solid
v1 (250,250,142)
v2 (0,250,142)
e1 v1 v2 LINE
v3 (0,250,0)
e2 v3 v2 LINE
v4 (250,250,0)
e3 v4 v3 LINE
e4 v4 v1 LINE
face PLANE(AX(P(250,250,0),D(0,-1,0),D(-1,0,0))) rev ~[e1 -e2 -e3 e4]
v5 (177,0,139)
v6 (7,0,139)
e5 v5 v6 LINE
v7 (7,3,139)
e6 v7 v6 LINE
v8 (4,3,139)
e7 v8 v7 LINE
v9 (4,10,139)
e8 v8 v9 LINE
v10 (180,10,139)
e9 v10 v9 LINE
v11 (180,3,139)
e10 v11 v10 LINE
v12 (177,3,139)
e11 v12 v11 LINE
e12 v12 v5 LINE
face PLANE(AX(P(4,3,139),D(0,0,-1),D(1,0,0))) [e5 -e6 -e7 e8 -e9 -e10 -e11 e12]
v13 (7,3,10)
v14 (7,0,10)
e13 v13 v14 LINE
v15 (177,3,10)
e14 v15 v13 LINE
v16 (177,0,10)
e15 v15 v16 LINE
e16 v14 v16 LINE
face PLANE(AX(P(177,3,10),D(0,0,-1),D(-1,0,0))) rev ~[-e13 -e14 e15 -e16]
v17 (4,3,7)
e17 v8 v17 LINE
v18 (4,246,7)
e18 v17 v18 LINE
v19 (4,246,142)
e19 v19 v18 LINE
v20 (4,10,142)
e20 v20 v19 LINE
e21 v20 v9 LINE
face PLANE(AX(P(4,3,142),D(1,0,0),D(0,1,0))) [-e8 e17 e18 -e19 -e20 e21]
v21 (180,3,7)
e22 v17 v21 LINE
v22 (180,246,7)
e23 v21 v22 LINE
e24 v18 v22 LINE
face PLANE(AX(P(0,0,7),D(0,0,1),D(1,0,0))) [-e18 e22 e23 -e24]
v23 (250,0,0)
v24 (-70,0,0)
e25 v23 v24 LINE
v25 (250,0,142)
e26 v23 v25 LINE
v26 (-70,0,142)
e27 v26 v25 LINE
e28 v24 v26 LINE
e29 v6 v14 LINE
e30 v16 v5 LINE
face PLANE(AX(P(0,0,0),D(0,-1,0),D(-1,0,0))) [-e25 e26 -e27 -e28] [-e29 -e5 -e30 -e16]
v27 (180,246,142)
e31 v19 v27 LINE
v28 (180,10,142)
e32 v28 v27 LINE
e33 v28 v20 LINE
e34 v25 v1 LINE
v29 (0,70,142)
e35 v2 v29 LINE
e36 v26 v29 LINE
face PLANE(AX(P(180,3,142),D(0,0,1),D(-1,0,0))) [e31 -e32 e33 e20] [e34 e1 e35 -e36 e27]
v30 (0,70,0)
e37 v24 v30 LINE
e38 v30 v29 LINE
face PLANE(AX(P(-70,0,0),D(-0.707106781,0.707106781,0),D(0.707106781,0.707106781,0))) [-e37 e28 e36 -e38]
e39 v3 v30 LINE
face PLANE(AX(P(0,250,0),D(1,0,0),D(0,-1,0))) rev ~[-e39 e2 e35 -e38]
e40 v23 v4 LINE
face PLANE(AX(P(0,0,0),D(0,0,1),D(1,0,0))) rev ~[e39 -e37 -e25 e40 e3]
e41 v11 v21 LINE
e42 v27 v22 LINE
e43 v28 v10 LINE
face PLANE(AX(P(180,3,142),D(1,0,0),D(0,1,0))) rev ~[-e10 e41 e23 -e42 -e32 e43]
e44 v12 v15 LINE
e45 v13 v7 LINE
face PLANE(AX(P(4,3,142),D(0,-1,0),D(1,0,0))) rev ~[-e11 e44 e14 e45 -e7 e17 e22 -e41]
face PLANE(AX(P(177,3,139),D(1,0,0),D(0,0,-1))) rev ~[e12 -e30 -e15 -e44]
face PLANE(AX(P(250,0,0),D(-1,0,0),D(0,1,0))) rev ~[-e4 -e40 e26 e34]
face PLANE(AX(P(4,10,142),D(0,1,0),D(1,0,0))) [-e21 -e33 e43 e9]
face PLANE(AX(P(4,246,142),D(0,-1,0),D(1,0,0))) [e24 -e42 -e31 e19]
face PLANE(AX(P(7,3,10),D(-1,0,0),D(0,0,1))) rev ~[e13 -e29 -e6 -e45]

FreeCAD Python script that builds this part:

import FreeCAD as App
import Part
import Sketcher


def add_polygon(sketch, points):
    """Adds a closed chain of lines whose ends are joined by coincident constraints."""
    first, n = sketch.GeometryCount, len(points)
    for a, b in zip(points, points[1:] + points[:1]):
        sketch.addGeometry(Part.LineSegment(App.Vector(*a, 0), App.Vector(*b, 0)), False)
    for i in range(n):
        sketch.addConstraint(Sketcher.Constraint("Coincident", first + i, 2, first + (i + 1) % n, 1))

doc = App.newDocument("Part")
params = doc.addObject("Spreadsheet::Sheet", "Params")
for row, (alias, value) in enumerate([
    ("sketch1_width", "250 mm"),
    ("pad1_length", "142 mm"),
    ("sketch2_width", "176 mm"),
    ("sketch2_height", "243 mm"),
    ("pocket1_length", "135 mm"),
    ("sketch3_width", "170 mm"),
    ("sketch3_height", "129 mm"),
    ("sketch4_width", "176 mm"),
    ("sketch4_height", "3 mm"),
    ("pad2_length", "7 mm"),
], start=1):
    params.set(f"A{row}", alias)
    params.set(f"B{row}", "=" + value)
    params.setAlias(f"B{row}", alias)

body = doc.addObject("PartDesign::Body", "Body")

sketch1 = body.newObject("Sketcher::SketchObject", "Sketch")
sketch1.AttachmentSupport = (doc.getObject("XY_Plane"), [""])
sketch1.MapMode = "FlatFace"
add_polygon(sketch1, [(0, 250), (0, 70), (-70, 0), (250, 0), (250, 250)])
sketch1.addConstraint([
    Sketcher.Constraint("Vertical", 0),
    Sketcher.Constraint("Horizontal", 2),
    Sketcher.Constraint("Vertical", 3),
    Sketcher.Constraint("Horizontal", 4),
    Sketcher.Constraint("PointOnObject", 0, 2, -2),
    Sketcher.Constraint("PointOnObject", 1, 2, -1),
    Sketcher.Constraint("Equal", 4, 3),
    Sketcher.Constraint("DistanceX", 4, 2, 4, 1, 250.0),
    Sketcher.Constraint("DistanceY", -1, 1, 0, 2, 70.0),
    Sketcher.Constraint("DistanceX", 1, 2, -1, 1, 70.0),
])
sketch1.setExpression("Constraints[12]", "Params.sketch1_width")
pad1 = body.newObject("PartDesign::Pad", "Pad")
pad1.Profile = sketch1
pad1.setExpression("Length", "Params.pad1_length")

sketch2 = body.newObject("Sketcher::SketchObject", "Sketch001")
sketch2.AttachmentSupport = (doc.getObject("XY_Plane"), [""])
sketch2.MapMode = "FlatFace"
sketch2.AttachmentOffset = App.Placement(App.Vector(0, 0, 142), App.Rotation())
add_polygon(sketch2, [(4, 246), (4, 3), (180, 3), (180, 246)])
sketch2.addConstraint([
    Sketcher.Constraint("Vertical", 0),
    Sketcher.Constraint("Horizontal", 1),
    Sketcher.Constraint("Vertical", 2),
    Sketcher.Constraint("Horizontal", 3),
    Sketcher.Constraint("DistanceX", 1, 1, 1, 2, 176.0),
    Sketcher.Constraint("DistanceY", 0, 2, 0, 1, 243.0),
    Sketcher.Constraint("DistanceX", -1, 1, 0, 2, 4.0),
    Sketcher.Constraint("DistanceY", -1, 1, 0, 2, 3.0),
])
sketch2.setExpression("Constraints[8]", "Params.sketch2_width")
sketch2.setExpression("Constraints[9]", "Params.sketch2_height")
pocket1 = body.newObject("PartDesign::Pocket", "Pocket")
pocket1.Profile = sketch2
pocket1.setExpression("Length", "Params.pocket1_length")

sketch3 = body.newObject("Sketcher::SketchObject", "Sketch002")
sketch3.AttachmentSupport = (doc.getObject("XZ_Plane"), [""])
sketch3.MapMode = "FlatFace"
sketch3.AttachmentOffset = App.Placement(App.Vector(0, 0, -3), App.Rotation())
add_polygon(sketch3, [(7, 10), (7, 139), (177, 139), (177, 10)])
sketch3.addConstraint([
    Sketcher.Constraint("Vertical", 0),
    Sketcher.Constraint("Horizontal", 1),
    Sketcher.Constraint("Vertical", 2),
    Sketcher.Constraint("Horizontal", 3),
    Sketcher.Constraint("DistanceX", 1, 1, 1, 2, 170.0),
    Sketcher.Constraint("DistanceY", 0, 1, 0, 2, 129.0),
    Sketcher.Constraint("DistanceX", -1, 1, 0, 2, 7.0),
    Sketcher.Constraint("DistanceY", -1, 1, 0, 2, 139.0),
])
sketch3.setExpression("Constraints[8]", "Params.sketch3_width")
sketch3.setExpression("Constraints[9]", "Params.sketch3_height")
pocket2 = body.newObject("PartDesign::Pocket", "Pocket001")
pocket2.Profile = sketch3
pocket2.Type = "ThroughAll"
pocket2.Reversed = True

sketch4 = body.newObject("Sketcher::SketchObject", "Sketch003")
sketch4.AttachmentSupport = (doc.getObject("XZ_Plane"), [""])
sketch4.MapMode = "FlatFace"
sketch4.AttachmentOffset = App.Placement(App.Vector(0, 0, -3), App.Rotation())
add_polygon(sketch4, [(4, 142), (180, 142), (180, 139), (4, 139)])
sketch4.addConstraint([
    Sketcher.Constraint("Horizontal", 0),
    Sketcher.Constraint("Vertical", 1),
    Sketcher.Constraint("Horizontal", 2),
    Sketcher.Constraint("Vertical", 3),
    Sketcher.Constraint("DistanceX", 0, 1, 0, 2, 176.0),
    Sketcher.Constraint("DistanceY", 1, 2, 1, 1, 3.0),
    Sketcher.Constraint("DistanceX", -1, 1, 0, 2, 180.0),
    Sketcher.Constraint("DistanceY", -1, 1, 0, 2, 142.0),
])
sketch4.setExpression("Constraints[8]", "Params.sketch4_width")
sketch4.setExpression("Constraints[9]", "Params.sketch4_height")
pad2 = body.newObject("PartDesign::Pad", "Pad001")
pad2.Profile = sketch4
pad2.setExpression("Length", "Params.pad2_length")
pad2.Reversed = True

doc.recompute()
